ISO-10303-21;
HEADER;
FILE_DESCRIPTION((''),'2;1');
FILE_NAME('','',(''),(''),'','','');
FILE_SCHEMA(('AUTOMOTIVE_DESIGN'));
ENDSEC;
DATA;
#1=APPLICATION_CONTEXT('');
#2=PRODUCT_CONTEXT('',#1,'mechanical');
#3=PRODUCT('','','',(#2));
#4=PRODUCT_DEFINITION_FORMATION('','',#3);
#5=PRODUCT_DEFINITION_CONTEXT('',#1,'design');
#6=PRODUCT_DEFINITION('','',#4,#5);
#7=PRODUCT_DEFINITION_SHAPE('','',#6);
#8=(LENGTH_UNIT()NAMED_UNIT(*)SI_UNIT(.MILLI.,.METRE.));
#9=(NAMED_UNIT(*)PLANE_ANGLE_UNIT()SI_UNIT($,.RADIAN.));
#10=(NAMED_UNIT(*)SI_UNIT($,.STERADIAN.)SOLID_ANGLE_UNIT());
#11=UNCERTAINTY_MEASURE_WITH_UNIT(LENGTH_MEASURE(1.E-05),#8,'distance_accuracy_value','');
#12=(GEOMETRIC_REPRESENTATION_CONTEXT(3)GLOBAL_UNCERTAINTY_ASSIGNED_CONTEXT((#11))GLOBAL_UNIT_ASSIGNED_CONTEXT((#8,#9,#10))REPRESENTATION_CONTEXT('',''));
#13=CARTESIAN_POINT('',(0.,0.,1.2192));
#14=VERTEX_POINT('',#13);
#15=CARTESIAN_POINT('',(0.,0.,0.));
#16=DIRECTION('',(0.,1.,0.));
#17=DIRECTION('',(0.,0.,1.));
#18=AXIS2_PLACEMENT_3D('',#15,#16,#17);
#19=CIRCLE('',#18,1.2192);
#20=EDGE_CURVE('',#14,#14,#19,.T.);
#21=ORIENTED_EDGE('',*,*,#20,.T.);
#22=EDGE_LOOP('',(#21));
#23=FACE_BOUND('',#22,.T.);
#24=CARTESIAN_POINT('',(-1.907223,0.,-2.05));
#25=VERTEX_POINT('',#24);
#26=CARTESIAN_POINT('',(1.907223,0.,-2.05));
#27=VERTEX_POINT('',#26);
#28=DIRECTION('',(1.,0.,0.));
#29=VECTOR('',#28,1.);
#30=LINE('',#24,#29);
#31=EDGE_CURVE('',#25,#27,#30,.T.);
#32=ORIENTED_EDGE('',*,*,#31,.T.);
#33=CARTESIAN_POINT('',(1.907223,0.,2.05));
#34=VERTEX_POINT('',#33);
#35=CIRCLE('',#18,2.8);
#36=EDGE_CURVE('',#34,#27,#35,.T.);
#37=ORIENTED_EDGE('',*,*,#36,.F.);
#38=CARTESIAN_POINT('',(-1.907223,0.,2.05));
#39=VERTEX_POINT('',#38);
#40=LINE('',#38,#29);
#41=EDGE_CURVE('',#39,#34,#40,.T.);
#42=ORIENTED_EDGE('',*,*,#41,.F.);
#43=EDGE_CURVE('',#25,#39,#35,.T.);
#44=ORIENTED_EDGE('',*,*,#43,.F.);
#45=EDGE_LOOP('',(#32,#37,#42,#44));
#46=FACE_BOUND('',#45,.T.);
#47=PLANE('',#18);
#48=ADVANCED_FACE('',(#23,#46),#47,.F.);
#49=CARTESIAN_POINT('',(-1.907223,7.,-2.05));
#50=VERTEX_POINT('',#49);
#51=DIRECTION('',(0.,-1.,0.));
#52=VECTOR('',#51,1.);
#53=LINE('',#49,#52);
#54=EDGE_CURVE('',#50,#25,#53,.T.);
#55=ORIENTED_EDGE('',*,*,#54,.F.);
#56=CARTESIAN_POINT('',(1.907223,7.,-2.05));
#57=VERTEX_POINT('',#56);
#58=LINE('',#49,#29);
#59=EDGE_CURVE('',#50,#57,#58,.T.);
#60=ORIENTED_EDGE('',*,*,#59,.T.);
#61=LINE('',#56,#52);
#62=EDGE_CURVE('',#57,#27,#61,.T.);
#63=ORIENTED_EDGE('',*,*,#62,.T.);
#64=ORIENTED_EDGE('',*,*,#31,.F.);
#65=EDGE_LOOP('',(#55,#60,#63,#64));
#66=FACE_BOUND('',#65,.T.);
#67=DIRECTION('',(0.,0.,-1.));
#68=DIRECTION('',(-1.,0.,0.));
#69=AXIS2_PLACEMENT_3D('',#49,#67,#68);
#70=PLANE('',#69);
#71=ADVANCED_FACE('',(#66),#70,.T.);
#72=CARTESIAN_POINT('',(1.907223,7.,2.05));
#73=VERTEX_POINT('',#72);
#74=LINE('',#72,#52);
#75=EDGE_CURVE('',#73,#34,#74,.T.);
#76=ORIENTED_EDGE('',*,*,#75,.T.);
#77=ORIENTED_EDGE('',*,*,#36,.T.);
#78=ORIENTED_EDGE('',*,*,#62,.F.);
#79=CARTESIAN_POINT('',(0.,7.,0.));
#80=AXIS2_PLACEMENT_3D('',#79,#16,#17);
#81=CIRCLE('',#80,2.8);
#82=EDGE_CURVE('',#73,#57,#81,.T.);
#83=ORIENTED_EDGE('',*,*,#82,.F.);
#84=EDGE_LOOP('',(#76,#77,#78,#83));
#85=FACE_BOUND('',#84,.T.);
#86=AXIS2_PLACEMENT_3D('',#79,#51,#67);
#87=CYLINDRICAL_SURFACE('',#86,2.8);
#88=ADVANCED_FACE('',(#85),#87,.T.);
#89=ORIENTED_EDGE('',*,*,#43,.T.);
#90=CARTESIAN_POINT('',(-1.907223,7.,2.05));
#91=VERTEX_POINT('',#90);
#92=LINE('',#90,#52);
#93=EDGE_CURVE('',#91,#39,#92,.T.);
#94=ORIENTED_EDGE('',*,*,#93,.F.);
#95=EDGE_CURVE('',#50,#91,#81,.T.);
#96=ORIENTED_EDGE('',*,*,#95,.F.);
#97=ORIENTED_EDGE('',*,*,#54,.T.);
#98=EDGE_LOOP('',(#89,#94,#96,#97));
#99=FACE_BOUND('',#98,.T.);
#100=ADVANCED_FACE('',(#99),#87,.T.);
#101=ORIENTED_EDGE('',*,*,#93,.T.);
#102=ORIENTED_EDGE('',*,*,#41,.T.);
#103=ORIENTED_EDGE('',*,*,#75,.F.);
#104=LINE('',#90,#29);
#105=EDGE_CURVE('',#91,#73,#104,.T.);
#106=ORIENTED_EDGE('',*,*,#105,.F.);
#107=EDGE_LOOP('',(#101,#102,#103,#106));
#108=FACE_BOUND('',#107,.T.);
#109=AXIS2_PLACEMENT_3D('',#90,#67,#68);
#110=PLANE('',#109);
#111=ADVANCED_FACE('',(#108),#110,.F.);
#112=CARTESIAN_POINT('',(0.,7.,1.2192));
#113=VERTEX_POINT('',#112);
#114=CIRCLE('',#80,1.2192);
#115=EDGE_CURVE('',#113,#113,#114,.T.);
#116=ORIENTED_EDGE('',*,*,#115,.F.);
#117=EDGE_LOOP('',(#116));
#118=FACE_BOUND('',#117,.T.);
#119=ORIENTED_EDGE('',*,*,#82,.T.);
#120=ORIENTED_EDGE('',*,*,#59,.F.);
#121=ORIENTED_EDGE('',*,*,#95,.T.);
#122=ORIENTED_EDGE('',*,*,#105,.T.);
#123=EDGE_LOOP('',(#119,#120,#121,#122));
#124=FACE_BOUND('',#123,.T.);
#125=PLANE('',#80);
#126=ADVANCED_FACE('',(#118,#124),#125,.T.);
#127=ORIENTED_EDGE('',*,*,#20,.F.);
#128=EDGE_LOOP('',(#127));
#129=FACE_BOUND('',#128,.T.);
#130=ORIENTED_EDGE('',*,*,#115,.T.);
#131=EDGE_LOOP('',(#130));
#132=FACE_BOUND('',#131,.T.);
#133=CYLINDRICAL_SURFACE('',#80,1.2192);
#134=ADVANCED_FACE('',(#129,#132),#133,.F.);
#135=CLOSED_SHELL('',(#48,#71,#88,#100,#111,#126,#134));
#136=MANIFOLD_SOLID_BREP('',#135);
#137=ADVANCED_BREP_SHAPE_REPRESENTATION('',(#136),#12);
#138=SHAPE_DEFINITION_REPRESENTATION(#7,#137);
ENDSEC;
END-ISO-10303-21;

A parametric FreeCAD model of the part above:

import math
import FreeCAD as App
import Part
import Sketcher
from FreeCAD import Vector
Q = App.Units.Quantity

doc = App.newDocument("Part")
body = doc.addObject("PartDesign::Body", "Body")

# Sketch on XZ plane
sketch1 = body.newObject("Sketcher::SketchObject", "Sketch")
sketch1.AttachmentSupport = (doc.getObject("XZ_Plane"), [""])
sketch1.MapMode = "FlatFace"
sketch1.addGeometry([
    Part.LineSegment(Vector(1.9, -2, 0), Vector(-1.9, -2, 0)),
    Part.ArcOfCircle(Part.Circle(Vector(0, 0, 0), Vector(0, 0, 1), 2.8), math.radians(133), math.radians(227)),
    Part.LineSegment(Vector(-1.9, 2, 0), Vector(1.9, 2, 0)),
    Part.ArcOfCircle(Part.Circle(Vector(0, 0, 0), Vector(0, 0, 1), 2.8), math.radians(-47), math.radians(47)),
], False)
sketch1.addConstraint([
    Sketcher.Constraint("Coincident", 0, 2, 1, 2),
    Sketcher.Constraint("Coincident", 1, 1, 2, 1),
    Sketcher.Constraint("Coincident", 2, 2, 3, 2),
    Sketcher.Constraint("Coincident", 3, 1, 0, 1),
    Sketcher.Constraint("Horizontal", 0),
    Sketcher.Constraint("Horizontal", 2),
    Sketcher.Constraint("Coincident", 1, 3, -1, 1),
    Sketcher.Constraint("Coincident", 3, 3, -1, 1),
    Sketcher.Constraint("Equal", 1, 3),
    Sketcher.Constraint("Vertical", 0, 2, 1, 1),
    Sketcher.Constraint("Radius", 1, Q("2.8 mm")),
    Sketcher.Constraint("DistanceY", 0, 2, 1, 1, Q("4.1 mm")),
])
pad1 = body.newObject("PartDesign::Pad", "Pad")
pad1.Profile = sketch1
pad1.Length = 7
pad1.Reversed = True

# Sketch on XZ plane
sketch2 = body.newObject("Sketcher::SketchObject", "Sketch001")
sketch2.AttachmentSupport = (doc.getObject("XZ_Plane"), [""])
sketch2.MapMode = "FlatFace"
sketch2.AttachmentOffset = App.Placement(Vector(0, 0, -7), App.Rotation())
sketch2.addGeometry(Part.Circle(Vector(0, 0, 0), Vector(0, 0, 1), 1.2), False)
sketch2.addConstraint([
    Sketcher.Constraint("Coincident", 0, 3, -1, 1),
    Sketcher.Constraint("Diameter", 0, Q("2.4384 mm")),
])
doc.recompute()
hole = body.newObject("PartDesign::Hole", "Hole")
hole.Profile = sketch2
hole.ThreadType = "None"
hole.Diameter = 2.4384
hole.DepthType = "ThroughAll"
hole.Reversed = True

doc.recompute()
